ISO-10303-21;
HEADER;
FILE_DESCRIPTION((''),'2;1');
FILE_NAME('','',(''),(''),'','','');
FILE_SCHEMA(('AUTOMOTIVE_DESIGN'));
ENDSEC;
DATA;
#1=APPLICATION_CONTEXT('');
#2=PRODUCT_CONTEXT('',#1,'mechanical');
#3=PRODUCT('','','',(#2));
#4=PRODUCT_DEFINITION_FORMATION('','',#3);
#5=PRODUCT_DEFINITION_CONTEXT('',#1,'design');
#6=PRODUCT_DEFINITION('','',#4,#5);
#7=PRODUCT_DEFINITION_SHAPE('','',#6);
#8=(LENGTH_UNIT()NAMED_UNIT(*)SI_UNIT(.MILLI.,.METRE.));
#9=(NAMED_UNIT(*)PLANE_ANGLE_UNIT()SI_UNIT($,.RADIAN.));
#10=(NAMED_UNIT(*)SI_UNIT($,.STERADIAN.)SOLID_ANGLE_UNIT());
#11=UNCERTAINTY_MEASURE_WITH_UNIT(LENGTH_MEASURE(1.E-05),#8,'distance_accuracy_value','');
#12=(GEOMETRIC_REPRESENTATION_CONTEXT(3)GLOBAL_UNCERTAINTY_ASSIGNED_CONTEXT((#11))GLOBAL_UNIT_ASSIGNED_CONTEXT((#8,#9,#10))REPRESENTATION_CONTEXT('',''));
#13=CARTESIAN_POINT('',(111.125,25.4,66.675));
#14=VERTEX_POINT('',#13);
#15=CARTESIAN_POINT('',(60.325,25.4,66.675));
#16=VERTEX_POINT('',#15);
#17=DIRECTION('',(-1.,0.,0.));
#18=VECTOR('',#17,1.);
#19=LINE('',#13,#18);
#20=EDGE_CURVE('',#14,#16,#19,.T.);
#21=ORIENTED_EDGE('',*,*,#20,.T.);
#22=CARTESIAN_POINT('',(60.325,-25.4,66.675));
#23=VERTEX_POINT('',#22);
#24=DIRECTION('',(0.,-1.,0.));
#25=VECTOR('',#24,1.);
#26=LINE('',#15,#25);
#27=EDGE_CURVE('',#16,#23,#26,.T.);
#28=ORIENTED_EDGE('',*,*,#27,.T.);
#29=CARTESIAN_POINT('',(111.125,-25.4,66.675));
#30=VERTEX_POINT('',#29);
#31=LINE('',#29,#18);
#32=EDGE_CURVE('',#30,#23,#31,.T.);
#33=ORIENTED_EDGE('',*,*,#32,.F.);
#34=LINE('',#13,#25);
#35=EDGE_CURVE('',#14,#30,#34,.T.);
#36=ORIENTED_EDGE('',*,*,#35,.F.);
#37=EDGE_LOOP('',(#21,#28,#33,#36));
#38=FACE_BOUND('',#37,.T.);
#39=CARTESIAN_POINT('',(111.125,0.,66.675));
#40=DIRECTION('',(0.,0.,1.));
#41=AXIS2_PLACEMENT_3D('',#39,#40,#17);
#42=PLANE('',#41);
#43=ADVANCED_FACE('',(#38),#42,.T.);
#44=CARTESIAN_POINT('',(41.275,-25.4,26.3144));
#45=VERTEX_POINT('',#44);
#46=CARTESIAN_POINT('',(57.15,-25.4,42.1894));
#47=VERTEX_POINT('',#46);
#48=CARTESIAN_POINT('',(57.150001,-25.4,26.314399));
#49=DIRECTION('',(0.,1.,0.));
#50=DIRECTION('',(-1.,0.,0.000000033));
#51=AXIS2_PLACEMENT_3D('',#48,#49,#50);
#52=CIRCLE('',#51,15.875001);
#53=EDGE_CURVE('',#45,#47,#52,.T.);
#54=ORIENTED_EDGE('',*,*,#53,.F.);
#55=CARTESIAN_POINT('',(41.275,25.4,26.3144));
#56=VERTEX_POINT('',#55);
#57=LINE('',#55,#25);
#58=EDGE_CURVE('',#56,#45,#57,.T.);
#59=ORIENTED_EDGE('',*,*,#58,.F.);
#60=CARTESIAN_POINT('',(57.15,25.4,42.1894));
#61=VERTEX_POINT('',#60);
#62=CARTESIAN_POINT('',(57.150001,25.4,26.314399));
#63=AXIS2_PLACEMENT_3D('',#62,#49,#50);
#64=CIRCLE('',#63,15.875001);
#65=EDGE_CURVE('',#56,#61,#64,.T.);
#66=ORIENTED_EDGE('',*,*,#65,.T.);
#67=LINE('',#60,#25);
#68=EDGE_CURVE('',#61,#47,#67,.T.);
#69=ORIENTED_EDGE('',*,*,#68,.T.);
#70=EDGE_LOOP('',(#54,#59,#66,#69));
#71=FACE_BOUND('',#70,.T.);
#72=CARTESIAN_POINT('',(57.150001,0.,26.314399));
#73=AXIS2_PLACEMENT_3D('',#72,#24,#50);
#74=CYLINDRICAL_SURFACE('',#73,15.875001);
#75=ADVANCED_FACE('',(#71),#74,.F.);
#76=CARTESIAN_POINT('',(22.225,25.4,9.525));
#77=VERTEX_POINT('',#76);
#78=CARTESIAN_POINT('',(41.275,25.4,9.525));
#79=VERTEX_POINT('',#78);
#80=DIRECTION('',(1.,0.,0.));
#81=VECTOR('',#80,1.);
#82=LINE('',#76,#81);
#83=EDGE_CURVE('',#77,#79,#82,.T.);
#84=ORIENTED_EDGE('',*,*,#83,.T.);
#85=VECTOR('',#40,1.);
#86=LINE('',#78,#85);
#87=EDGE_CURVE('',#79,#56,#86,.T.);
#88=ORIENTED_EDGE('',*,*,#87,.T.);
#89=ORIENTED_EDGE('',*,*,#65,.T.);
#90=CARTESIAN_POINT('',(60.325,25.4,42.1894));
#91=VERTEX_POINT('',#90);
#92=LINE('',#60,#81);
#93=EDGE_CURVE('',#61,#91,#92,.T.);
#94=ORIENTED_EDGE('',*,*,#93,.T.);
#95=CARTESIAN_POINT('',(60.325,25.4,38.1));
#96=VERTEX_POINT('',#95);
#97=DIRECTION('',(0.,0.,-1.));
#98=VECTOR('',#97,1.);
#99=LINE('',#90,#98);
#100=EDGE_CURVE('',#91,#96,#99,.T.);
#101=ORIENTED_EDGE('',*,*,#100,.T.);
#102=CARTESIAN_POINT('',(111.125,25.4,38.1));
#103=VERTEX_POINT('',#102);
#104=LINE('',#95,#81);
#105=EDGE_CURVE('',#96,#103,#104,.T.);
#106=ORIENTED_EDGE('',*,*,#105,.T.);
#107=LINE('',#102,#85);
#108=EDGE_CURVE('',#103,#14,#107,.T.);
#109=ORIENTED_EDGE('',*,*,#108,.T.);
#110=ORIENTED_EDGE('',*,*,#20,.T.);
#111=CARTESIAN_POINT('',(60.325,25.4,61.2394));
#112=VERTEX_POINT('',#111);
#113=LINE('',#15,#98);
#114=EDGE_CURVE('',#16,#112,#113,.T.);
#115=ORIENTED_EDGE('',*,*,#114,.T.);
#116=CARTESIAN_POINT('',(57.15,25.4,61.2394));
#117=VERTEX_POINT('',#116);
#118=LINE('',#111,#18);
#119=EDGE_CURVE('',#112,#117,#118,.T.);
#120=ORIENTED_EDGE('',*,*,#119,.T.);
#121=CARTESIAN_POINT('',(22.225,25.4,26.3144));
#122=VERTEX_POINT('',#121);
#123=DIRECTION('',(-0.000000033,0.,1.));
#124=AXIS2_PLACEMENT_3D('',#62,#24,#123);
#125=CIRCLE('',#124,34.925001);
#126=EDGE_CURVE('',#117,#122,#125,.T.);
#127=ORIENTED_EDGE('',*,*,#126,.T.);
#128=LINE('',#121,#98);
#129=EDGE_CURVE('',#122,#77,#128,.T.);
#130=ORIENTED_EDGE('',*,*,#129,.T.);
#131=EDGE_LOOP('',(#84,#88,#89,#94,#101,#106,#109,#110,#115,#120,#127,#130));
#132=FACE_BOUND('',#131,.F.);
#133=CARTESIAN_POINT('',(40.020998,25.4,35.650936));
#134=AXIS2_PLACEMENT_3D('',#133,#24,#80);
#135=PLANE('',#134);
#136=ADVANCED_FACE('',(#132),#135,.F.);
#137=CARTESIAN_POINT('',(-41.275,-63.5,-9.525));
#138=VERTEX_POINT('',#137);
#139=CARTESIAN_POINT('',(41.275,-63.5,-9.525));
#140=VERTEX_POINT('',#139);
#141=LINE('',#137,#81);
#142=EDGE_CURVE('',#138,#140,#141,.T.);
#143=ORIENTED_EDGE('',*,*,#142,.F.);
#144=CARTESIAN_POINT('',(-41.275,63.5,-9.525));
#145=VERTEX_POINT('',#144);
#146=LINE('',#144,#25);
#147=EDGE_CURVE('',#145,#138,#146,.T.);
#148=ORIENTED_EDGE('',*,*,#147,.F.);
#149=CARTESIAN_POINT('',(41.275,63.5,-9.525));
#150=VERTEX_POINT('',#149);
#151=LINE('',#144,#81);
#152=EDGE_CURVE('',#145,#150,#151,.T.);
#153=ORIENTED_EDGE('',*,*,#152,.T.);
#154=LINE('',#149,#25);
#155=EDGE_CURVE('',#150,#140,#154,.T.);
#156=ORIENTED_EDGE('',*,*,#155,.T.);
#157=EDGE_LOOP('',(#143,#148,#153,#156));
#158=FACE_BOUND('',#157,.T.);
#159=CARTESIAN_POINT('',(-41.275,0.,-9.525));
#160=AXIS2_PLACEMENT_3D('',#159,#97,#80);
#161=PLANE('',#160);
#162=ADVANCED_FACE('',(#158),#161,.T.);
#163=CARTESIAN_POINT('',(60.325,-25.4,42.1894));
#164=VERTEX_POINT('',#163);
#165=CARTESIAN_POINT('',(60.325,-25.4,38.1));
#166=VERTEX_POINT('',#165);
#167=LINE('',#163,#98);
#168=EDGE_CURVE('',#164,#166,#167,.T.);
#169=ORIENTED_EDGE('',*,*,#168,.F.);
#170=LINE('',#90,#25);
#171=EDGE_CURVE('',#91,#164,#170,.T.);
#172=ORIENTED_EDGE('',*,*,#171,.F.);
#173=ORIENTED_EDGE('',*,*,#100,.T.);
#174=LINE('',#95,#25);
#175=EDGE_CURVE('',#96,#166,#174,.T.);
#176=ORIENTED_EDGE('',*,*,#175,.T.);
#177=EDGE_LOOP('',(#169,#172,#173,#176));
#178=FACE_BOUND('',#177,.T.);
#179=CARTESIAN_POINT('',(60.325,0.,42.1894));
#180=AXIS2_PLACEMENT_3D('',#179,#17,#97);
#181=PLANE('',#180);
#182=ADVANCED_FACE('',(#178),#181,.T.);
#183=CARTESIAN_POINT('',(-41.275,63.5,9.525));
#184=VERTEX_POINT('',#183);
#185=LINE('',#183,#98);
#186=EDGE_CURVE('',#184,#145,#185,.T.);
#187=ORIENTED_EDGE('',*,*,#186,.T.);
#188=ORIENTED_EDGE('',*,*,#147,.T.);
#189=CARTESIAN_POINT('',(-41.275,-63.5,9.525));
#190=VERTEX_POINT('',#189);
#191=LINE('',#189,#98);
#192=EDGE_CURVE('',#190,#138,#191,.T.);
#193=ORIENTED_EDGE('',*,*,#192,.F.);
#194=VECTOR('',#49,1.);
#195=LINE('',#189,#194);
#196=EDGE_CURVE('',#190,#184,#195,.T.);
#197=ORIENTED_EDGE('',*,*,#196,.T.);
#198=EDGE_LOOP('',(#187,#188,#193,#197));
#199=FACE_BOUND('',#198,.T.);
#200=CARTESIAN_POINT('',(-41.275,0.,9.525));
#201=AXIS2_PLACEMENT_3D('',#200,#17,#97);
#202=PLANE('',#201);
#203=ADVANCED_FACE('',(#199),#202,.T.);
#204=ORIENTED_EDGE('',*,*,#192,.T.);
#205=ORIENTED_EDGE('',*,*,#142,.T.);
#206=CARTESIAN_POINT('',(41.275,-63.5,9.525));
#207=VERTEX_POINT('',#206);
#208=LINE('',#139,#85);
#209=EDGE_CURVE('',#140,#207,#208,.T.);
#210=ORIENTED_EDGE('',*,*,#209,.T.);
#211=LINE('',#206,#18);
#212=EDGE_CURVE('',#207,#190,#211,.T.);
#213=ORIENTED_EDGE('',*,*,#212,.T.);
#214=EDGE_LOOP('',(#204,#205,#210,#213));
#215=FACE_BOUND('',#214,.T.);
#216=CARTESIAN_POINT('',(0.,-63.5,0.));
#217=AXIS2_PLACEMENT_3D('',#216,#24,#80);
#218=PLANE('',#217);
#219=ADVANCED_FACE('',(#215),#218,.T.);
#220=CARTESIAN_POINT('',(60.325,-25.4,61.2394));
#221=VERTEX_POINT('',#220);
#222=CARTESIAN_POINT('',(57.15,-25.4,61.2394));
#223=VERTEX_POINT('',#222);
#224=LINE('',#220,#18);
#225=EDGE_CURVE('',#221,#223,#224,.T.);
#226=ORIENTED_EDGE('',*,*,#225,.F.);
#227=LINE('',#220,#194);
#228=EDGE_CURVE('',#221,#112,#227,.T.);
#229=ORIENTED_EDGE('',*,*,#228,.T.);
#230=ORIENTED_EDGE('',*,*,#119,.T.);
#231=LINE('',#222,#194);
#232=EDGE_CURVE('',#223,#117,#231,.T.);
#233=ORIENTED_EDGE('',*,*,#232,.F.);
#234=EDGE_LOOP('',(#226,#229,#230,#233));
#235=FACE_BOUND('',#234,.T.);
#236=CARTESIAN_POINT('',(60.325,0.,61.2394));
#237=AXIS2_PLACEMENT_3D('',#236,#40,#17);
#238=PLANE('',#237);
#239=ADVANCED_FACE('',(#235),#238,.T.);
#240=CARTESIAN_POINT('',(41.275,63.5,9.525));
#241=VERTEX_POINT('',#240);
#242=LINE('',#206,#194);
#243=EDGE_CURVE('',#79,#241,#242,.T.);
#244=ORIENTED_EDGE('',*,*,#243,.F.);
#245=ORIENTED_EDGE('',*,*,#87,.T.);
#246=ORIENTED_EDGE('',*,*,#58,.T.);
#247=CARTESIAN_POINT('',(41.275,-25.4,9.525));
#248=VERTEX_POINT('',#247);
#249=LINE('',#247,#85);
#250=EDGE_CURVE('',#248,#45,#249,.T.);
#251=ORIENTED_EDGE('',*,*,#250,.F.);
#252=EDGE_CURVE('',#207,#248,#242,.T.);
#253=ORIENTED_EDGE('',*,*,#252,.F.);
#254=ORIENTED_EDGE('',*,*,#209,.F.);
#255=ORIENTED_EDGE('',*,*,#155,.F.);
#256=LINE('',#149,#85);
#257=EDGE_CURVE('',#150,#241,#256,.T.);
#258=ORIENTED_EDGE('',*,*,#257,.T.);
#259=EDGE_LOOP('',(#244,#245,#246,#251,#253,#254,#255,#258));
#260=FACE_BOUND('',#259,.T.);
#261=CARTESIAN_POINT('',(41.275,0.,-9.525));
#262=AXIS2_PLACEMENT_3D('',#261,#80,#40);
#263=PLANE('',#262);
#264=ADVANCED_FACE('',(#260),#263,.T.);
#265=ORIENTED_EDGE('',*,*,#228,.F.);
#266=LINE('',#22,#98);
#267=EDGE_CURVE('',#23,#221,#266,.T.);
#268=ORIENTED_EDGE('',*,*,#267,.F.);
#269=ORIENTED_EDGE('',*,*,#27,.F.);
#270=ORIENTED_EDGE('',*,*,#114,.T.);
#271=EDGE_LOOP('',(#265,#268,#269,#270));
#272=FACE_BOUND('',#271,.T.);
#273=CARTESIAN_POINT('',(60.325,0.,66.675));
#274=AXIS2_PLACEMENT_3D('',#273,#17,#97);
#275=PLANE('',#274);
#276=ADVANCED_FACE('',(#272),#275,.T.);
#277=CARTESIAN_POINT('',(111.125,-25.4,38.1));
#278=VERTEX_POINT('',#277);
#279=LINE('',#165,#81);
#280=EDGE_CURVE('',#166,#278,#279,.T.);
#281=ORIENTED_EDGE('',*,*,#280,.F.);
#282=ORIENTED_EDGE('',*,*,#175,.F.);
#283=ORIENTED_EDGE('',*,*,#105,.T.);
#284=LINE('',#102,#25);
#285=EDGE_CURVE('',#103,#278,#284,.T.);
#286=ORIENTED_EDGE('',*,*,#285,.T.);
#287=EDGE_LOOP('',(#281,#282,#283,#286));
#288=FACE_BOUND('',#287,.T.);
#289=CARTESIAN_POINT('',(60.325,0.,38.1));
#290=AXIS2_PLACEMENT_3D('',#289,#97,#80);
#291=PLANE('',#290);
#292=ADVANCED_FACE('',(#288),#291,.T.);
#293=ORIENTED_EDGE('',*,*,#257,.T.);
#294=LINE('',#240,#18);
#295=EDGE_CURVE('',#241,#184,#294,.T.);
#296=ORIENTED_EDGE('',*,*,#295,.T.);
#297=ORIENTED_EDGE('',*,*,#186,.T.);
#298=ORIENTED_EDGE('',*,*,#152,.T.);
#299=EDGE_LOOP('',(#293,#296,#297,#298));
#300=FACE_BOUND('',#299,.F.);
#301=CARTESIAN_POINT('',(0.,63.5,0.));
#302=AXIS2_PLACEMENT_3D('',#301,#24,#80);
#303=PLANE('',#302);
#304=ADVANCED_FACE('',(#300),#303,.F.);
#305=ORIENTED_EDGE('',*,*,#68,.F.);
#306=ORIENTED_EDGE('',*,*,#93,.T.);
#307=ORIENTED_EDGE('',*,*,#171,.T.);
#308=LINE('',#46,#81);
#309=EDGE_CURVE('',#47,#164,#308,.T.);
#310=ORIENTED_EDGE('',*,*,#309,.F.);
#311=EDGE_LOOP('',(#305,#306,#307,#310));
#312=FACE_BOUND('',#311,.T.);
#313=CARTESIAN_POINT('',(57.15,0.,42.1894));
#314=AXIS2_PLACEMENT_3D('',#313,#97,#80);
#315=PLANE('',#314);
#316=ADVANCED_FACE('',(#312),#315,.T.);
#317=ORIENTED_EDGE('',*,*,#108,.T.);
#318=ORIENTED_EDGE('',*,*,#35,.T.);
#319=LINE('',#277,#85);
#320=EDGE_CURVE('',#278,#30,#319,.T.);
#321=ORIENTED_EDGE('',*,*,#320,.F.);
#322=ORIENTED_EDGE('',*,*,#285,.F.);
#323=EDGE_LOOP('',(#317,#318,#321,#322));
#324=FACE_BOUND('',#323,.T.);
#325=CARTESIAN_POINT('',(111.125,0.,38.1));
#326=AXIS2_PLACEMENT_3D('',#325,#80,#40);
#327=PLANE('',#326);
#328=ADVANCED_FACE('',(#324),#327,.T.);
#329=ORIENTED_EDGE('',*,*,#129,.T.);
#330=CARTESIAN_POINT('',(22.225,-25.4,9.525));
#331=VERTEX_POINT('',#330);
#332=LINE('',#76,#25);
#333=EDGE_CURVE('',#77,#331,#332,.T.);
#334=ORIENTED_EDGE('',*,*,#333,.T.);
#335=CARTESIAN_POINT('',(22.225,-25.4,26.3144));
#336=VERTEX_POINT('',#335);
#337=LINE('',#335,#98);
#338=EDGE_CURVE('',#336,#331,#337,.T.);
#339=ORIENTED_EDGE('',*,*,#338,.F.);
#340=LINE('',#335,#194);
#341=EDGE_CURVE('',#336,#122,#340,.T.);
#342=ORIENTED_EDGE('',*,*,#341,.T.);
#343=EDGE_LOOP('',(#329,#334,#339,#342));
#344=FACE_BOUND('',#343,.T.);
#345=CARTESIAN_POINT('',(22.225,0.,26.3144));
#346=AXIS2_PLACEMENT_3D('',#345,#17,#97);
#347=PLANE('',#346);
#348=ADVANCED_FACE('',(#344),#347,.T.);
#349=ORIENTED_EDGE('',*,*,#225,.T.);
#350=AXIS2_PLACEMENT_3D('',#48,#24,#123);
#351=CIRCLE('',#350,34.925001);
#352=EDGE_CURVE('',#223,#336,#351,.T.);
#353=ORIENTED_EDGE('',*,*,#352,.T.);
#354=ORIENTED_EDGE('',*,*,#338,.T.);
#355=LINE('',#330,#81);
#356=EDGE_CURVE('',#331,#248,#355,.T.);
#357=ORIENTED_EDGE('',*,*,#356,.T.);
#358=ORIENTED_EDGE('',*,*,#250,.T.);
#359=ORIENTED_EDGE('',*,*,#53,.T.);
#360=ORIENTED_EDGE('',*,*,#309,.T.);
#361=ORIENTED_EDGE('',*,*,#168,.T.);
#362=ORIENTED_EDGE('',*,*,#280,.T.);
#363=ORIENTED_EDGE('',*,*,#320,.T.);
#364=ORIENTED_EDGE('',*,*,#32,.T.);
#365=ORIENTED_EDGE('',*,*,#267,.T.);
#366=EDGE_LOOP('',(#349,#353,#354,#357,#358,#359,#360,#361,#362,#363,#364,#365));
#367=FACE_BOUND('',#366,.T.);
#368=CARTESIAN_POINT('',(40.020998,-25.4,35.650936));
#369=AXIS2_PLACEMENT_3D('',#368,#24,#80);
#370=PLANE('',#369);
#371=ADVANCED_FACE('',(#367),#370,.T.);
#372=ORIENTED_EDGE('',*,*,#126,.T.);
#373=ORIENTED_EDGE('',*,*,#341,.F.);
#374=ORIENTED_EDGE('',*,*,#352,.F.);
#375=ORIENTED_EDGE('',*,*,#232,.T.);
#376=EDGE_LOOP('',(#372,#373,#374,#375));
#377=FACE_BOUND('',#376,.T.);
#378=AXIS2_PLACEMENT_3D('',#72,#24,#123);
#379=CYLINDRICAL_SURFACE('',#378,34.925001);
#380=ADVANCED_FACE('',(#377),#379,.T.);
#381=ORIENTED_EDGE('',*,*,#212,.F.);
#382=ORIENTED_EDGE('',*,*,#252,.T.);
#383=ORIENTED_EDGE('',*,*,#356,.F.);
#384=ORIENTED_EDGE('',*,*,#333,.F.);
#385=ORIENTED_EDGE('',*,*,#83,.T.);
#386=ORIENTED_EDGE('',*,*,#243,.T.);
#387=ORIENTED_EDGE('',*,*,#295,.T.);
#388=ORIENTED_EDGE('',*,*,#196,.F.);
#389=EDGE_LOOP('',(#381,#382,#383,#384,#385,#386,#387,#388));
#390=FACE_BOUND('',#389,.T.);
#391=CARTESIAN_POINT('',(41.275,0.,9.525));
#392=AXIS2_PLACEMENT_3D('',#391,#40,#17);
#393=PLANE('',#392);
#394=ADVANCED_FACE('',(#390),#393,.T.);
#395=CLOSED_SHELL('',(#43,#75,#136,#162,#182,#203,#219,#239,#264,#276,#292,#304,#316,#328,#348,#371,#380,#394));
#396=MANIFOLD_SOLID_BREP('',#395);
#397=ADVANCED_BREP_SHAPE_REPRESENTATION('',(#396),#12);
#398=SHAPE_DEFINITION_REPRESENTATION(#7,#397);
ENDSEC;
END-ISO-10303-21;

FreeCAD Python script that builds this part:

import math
import FreeCAD as App
import Part
import Sketcher
Q = App.Units.Quantity

doc = App.newDocument("Part")
body = doc.addObject("PartDesign::Body", "Body")

# Sketch on XZ plane
sketch1 = doc.addObject("Sketcher::SketchObject", "Sketch")
body.addObject(sketch1)
sketch1.AttachmentSupport = (doc.XZ_Plane, [""])
sketch1.MapMode = "FlatFace"
sketch1.addGeometry([
    Part.LineSegment(App.Vector(-41, 10, 0), App.Vector(-41, -10, 0)),
    Part.LineSegment(App.Vector(-41, -10, 0), App.Vector(41, -10, 0)),
    Part.LineSegment(App.Vector(41, -10, 0), App.Vector(41, 10, 0)),
    Part.LineSegment(App.Vector(41, 10, 0), App.Vector(-41, 10, 0)),
], False)
sketch1.addConstraint([
    Sketcher.Constraint("Coincident", 0, 2, 1, 1),
    Sketcher.Constraint("Coincident", 1, 2, 2, 1),
    Sketcher.Constraint("Coincident", 2, 2, 3, 1),
    Sketcher.Constraint("Coincident", 3, 2, 0, 1),
    Sketcher.Constraint("Vertical", 0),
    Sketcher.Constraint("Horizontal", 1),
    Sketcher.Constraint("Vertical", 2),
    Sketcher.Constraint("Horizontal", 3),
    Sketcher.Constraint("Symmetric", 0, 2, 2, 2, -1, 1),
    Sketcher.Constraint("DistanceX", 1, 1, 1, 2, Q("3.25 in")),
    Sketcher.Constraint("DistanceY", 0, 2, 0, 1, Q("0.75 in")),
])
pad1 = doc.addObject("PartDesign::Pad", "Pad")
body.addObject(pad1)
pad1.Profile = sketch1
pad1.Length = Q("5 in")
pad1.Midplane = True

# Sketch on XZ plane
sketch2 = doc.addObject("Sketcher::SketchObject", "Sketch001")
body.addObject(sketch2)
sketch2.AttachmentSupport = (doc.XZ_Plane, [""])
sketch2.MapMode = "FlatFace"
sketch2.addGeometry([
    Part.LineSegment(App.Vector(22.2, 26.3, 0), App.Vector(22.2, 9.5, 0)),  # 0
    Part.LineSegment(App.Vector(22.2, 9.5, 0), App.Vector(41.3, 9.5, 0)),  # 1
    Part.LineSegment(App.Vector(41.3, 9.5, 0), App.Vector(41.3, 26.3, 0)),  # 2
    Part.ArcOfCircle(Part.Circle(App.Vector(57.2, 26.3, 0), App.Vector(0, 0, 1), 15.9), math.radians(90), math.radians(180)),  # 3
    Part.LineSegment(App.Vector(57.1, 42.2, 0), App.Vector(60.3, 42.2, 0)),  # 4
    Part.LineSegment(App.Vector(60.3, 42.2, 0), App.Vector(60.3, 38.1, 0)),  # 5
    Part.LineSegment(App.Vector(60.3, 38.1, 0), App.Vector(111.1, 38.1, 0)),  # 6
    Part.LineSegment(App.Vector(111.1, 38.1, 0), App.Vector(111.1, 66.7, 0)),  # 7
    Part.LineSegment(App.Vector(111.1, 66.7, 0), App.Vector(60.3, 66.7, 0)),  # 8
    Part.LineSegment(App.Vector(60.3, 66.7, 0), App.Vector(60.3, 61.2, 0)),  # 9
    Part.LineSegment(App.Vector(60.3, 61.2, 0), App.Vector(57.1, 61.2, 0)),  # 10
    Part.ArcOfCircle(Part.Circle(App.Vector(57.2, 26.3, 0), App.Vector(0, 0, 1), 34.9), math.radians(90), math.radians(180)),  # 11
], False)
sketch2.addConstraint([
    Sketcher.Constraint("Coincident", 0, 2, 1, 1),
    Sketcher.Constraint("Coincident", 1, 2, 2, 1),
    Sketcher.Constraint("Tangent", 2, 2, 3, 2),
    Sketcher.Constraint("Tangent", 3, 1, 4, 1),
    Sketcher.Constraint("Coincident", 4, 2, 5, 1),
    Sketcher.Constraint("Coincident", 5, 2, 6, 1),
    Sketcher.Constraint("Coincident", 6, 2, 7, 1),
    Sketcher.Constraint("Coincident", 7, 2, 8, 1),
    Sketcher.Constraint("Coincident", 8, 2, 9, 1),
    Sketcher.Constraint("Coincident", 9, 2, 10, 1),
    Sketcher.Constraint("Tangent", 10, 2, 11, 1),
    Sketcher.Constraint("Tangent", 11, 2, 0, 1),
    Sketcher.Constraint("Vertical", 0),
    Sketcher.Constraint("Horizontal", 1),
    Sketcher.Constraint("Vertical", 2),
    Sketcher.Constraint("Horizontal", 4),
    Sketcher.Constraint("Vertical", 5),
    Sketcher.Constraint("Horizontal", 6),
    Sketcher.Constraint("Vertical", 7),
    Sketcher.Constraint("Horizontal", 8),
    Sketcher.Constraint("Vertical", 9),
    Sketcher.Constraint("Horizontal", 10),
    Sketcher.Constraint("Coincident", 11, 3, 3, 3),
    Sketcher.Constraint("Vertical", 5, 2, 8, 2),
    Sketcher.Constraint("DistanceX", 6, 1, 6, 2, Q("2 in")),
    Sketcher.Constraint("Radius", 3, Q("0.625 in")),
    Sketcher.Constraint("Radius", 11, Q("1.375 in")),
    Sketcher.Constraint("DistanceY", -1, 1, 5, 2, Q("1.5 in")),
    Sketcher.Constraint("DistanceX", 4, 1, 4, 2, Q("0.125 in")),
    Sketcher.Constraint("DistanceY", 0, 2, 0, 1, Q("0.661 in")),
    Sketcher.Constraint("DistanceY", 5, 2, 5, 1, Q("0.161 in")),
    Sketcher.Constraint("DistanceY", 7, 1, 7, 2, Q("1.125 in")),
    Sketcher.Constraint("DistanceX", -1, 1, 3, 3, Q("2.25 in")),
])
pad2 = doc.addObject("PartDesign::Pad", "Pad001")
body.addObject(pad2)
pad2.Profile = sketch2
pad2.Length = Q("2 in")
pad2.Midplane = True

doc.recompute()
